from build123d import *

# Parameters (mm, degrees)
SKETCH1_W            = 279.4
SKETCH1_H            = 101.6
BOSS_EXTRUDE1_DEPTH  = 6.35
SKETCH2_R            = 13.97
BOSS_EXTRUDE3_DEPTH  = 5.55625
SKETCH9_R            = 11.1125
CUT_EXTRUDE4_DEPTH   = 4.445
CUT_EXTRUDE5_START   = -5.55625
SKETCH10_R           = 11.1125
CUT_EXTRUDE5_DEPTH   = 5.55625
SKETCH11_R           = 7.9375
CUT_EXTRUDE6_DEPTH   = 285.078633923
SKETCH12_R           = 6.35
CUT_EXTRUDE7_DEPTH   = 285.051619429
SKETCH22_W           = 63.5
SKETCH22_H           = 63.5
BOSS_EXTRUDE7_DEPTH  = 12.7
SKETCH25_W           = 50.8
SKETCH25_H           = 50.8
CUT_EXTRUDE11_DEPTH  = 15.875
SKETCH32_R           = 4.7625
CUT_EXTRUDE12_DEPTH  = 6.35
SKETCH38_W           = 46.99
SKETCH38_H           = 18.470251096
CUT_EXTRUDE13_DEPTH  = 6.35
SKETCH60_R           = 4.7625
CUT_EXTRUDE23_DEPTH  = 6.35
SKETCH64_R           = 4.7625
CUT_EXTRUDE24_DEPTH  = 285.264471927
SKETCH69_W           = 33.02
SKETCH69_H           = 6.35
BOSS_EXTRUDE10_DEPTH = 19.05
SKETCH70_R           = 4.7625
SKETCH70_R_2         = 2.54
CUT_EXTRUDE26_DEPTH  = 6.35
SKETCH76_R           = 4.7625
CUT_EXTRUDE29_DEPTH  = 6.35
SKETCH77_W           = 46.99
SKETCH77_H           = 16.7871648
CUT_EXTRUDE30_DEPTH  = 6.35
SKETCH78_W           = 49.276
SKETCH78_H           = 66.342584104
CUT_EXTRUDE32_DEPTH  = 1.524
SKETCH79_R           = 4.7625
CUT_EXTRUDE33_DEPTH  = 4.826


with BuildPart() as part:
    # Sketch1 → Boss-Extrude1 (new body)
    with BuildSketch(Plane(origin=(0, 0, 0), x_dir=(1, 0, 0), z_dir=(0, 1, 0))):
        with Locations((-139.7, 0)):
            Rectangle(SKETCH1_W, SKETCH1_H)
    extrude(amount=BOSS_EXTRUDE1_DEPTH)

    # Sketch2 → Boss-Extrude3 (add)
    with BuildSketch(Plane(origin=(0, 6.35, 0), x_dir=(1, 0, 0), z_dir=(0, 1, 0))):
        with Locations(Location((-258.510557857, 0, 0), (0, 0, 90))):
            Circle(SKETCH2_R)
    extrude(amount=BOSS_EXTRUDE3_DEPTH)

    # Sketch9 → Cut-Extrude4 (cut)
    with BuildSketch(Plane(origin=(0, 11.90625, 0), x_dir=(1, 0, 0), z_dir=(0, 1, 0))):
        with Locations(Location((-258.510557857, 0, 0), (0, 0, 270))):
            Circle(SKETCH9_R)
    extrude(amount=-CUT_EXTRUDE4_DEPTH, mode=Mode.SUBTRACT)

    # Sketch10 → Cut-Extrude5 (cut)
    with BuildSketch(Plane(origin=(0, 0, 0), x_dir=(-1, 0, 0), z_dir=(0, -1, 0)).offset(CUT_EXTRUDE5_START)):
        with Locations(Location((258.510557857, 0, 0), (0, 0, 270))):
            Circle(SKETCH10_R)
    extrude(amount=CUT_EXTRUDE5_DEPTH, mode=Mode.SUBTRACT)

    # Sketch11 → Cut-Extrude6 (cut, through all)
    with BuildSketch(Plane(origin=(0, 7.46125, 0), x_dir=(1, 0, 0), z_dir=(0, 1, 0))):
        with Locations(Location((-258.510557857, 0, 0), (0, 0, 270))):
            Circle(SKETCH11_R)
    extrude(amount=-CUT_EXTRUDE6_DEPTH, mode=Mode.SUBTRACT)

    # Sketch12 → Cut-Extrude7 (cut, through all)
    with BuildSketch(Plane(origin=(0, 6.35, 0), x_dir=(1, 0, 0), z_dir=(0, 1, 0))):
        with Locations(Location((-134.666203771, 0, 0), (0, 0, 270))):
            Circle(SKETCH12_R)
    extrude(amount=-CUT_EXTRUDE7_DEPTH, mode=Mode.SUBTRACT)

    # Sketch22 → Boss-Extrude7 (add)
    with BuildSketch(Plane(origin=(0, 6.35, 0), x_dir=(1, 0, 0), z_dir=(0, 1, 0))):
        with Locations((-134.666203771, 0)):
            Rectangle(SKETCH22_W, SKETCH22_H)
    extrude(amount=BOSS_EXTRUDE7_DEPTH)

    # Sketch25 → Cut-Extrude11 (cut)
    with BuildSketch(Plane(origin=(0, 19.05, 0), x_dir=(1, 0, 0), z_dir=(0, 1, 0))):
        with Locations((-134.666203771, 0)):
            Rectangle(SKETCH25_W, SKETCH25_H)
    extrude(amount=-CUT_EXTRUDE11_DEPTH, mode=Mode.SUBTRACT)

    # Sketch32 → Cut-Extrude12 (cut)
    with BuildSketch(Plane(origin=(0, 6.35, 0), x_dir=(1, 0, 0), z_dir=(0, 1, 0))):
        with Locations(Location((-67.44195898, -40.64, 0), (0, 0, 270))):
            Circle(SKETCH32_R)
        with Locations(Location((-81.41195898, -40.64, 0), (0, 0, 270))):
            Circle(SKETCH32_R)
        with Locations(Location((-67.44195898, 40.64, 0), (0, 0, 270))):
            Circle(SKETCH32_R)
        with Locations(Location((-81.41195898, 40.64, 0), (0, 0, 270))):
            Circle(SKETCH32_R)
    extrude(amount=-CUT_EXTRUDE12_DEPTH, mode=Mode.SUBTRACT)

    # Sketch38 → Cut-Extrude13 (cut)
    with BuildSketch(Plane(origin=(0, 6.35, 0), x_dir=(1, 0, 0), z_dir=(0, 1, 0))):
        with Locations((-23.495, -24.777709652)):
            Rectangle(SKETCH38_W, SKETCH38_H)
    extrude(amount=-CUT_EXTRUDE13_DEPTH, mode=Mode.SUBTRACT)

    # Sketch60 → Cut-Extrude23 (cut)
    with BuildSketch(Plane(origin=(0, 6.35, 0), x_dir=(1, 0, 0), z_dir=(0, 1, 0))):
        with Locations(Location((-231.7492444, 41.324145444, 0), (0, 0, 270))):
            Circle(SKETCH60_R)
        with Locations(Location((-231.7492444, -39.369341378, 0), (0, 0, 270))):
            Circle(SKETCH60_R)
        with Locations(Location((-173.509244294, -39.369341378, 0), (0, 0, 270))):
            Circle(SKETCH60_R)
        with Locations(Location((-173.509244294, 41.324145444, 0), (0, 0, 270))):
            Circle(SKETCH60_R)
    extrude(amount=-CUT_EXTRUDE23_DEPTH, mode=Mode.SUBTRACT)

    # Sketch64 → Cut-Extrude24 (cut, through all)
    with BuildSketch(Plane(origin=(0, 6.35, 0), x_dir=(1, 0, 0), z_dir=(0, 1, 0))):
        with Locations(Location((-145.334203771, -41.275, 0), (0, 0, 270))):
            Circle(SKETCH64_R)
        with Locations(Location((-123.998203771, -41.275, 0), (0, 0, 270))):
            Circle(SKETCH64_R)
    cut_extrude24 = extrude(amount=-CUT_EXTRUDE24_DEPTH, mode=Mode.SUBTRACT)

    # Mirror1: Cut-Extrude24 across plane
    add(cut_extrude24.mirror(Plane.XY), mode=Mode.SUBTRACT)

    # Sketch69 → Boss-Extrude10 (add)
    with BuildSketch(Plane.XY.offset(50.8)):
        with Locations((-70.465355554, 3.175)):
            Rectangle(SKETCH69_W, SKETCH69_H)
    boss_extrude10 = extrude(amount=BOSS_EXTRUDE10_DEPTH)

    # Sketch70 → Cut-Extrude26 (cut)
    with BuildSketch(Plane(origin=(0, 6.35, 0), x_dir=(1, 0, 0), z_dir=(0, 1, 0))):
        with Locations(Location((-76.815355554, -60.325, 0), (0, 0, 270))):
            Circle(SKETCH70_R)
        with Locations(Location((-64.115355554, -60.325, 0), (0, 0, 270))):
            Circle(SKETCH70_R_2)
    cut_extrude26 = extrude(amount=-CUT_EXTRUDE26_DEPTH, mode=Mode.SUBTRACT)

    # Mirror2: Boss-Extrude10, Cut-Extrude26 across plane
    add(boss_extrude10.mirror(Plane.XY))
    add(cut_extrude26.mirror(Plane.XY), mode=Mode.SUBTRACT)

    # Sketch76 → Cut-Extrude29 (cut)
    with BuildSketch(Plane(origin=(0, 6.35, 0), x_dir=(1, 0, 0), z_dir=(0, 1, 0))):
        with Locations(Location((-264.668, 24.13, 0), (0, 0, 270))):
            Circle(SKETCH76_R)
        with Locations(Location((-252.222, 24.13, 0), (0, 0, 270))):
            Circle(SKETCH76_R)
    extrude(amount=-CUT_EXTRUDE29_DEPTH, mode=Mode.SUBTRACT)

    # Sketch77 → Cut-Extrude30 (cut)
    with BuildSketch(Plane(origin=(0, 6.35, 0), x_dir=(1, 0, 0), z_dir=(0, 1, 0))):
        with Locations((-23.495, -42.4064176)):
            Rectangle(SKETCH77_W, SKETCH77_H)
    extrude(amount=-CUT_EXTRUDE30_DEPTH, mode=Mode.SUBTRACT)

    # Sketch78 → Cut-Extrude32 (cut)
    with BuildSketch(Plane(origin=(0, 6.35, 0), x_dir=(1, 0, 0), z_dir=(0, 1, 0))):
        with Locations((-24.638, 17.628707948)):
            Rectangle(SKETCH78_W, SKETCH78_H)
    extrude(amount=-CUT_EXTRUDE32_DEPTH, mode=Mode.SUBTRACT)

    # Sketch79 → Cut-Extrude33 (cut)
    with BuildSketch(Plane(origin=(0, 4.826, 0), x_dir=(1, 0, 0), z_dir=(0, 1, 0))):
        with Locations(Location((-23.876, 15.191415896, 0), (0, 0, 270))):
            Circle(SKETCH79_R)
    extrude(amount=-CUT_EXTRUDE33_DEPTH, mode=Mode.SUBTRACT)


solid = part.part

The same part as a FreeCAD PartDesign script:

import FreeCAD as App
import Part
import Sketcher

V = App.Vector
Q = App.Units.Quantity

doc = App.newDocument("Part")
body = doc.addObject("PartDesign::Body", "Body")

# Sketch on XZ plane
sketch1 = body.newObject("Sketcher::SketchObject", "Sketch")
sketch1.AttachmentSupport = (doc.getObject("XZ_Plane"), [""])
sketch1.MapMode = "FlatFace"
sketch1.addGeometry([
    Part.LineSegment(V(-279.4, -50.8, 0), V(-279.4, 50.8, 0)),
    Part.LineSegment(V(-279.4, 50.8, 0), V(0, 50.8, 0)),
    Part.LineSegment(V(0, 50.8, 0), V(0, -50.8, 0)),
    Part.LineSegment(V(0, -50.8, 0), V(-279.4, -50.8, 0)),
], False)
sketch1.addConstraint([
    Sketcher.Constraint("Coincident", 0, 2, 1, 1),
    Sketcher.Constraint("Coincident", 1, 2, 2, 1),
    Sketcher.Constraint("Coincident", 2, 2, 3, 1),
    Sketcher.Constraint("Coincident", 3, 2, 0, 1),
    Sketcher.Constraint("Vertical", 0),
    Sketcher.Constraint("Horizontal", 1),
    Sketcher.Constraint("Vertical", 2),
    Sketcher.Constraint("Horizontal", 3),
    Sketcher.Constraint("Symmetric", 1, 2, 2, 2, -1, 1),
    Sketcher.Constraint("DistanceX", 1, 1, 1, 2, Q("11 in")),
    Sketcher.Constraint("DistanceY", 0, 1, 0, 2, Q("4 in")),
])
pad1 = body.newObject("PartDesign::Pad", "Pad")
pad1.Profile = sketch1
pad1.Length = Q("0.25 in")
pad1.Reversed = True

# Sketch on XZ plane
sketch2 = body.newObject("Sketcher::SketchObject", "Sketch001")
sketch2.AttachmentSupport = (doc.getObject("XZ_Plane"), [""])
sketch2.MapMode = "FlatFace"
sketch2.AttachmentOffset = App.Placement(V(0, 0, -0.25 * 25.4), App.Rotation())
sketch2.addGeometry(Part.Circle(V(-258.510558, 0, 0), V(0, 0, 1), 13.97), False)
sketch2.addConstraint([
    Sketcher.Constraint("PointOnObject", 0, 3, -1),
    Sketcher.Constraint("Diameter", 0, Q("1.1 in")),
    Sketcher.Constraint("DistanceX", 0, 3, -1, 1, Q("258.510558 mm")),
])
pad2 = body.newObject("PartDesign::Pad", "Pad001")
pad2.Profile = sketch2
pad2.Length = Q("0.21875 in")
pad2.Reversed = True

# Sketch on XZ plane
sketch3 = body.newObject("Sketcher::SketchObject", "Sketch002")
sketch3.AttachmentSupport = (doc.getObject("XZ_Plane"), [""])
sketch3.MapMode = "FlatFace"
sketch3.AttachmentOffset = App.Placement(V(0, 0, -0.46875 * 25.4), App.Rotation())
sketch3.addGeometry(Part.Circle(V(-258.510558, 0, 0), V(0, 0, 1), 11.1125), False)
sketch3.addConstraint([
    Sketcher.Constraint("PointOnObject", 0, 3, -1),
    Sketcher.Constraint("Diameter", 0, Q("0.875 in")),
    Sketcher.Constraint("DistanceX", 0, 3, -1, 1, Q("258.510558 mm")),
])
pocket1 = body.newObject("PartDesign::Pocket", "Pocket")
pocket1.Profile = sketch3
pocket1.Length = Q("0.175 in")
pocket1.Reversed = True

# Sketch on XZ plane
sketch4 = body.newObject("Sketcher::SketchObject", "Sketch003")
sketch4.AttachmentSupport = (doc.getObject("XZ_Plane"), [""])
sketch4.MapMode = "FlatFace"
sketch4.AttachmentOffset = App.Placement(V(0, 0, -0.21875 * 25.4), App.Rotation())
sketch4.addGeometry(Part.Circle(V(-258.510558, 0, 0), V(0, 0, 1), 11.1125), False)
sketch4.addConstraint([
    Sketcher.Constraint("PointOnObject", 0, 3, -1),
    Sketcher.Constraint("Diameter", 0, Q("0.875 in")),
    Sketcher.Constraint("DistanceX", 0, 3, -1, 1, Q("258.510558 mm")),
])
pocket2 = body.newObject("PartDesign::Pocket", "Pocket001")
pocket2.Profile = sketch4
pocket2.Length = Q("0.21875 in")
pocket2.Reversed = True

# Sketch on XZ plane
sketch5 = body.newObject("Sketcher::SketchObject", "Sketch004")
sketch5.AttachmentSupport = (doc.getObject("XZ_Plane"), [""])
sketch5.MapMode = "FlatFace"
sketch5.AttachmentOffset = App.Placement(V(0, 0, -7.46125), App.Rotation())
sketch5.addGeometry(Part.Circle(V(-258.510558, 0, 0), V(0, 0, 1), 7.9375), False)
sketch5.addConstraint([
    Sketcher.Constraint("PointOnObject", 0, 3, -1),
    Sketcher.Constraint("Diameter", 0, Q("0.625 in")),
    Sketcher.Constraint("DistanceX", 0, 3, -1, 1, Q("258.510558 mm")),
])
pocket3 = body.newObject("PartDesign::Pocket", "Pocket002")
pocket3.Profile = sketch5
pocket3.Type = "ThroughAll"
pocket3.Reversed = True

# Sketch on XZ plane
sketch6 = body.newObject("Sketcher::SketchObject", "Sketch005")
sketch6.AttachmentSupport = (doc.getObject("XZ_Plane"), [""])
sketch6.MapMode = "FlatFace"
sketch6.AttachmentOffset = App.Placement(V(0, 0, -0.25 * 25.4), App.Rotation())
sketch6.addGeometry(Part.Circle(V(-134.666204, 0, 0), V(0, 0, 1), 6.35), False)
sketch6.addConstraint([
    Sketcher.Constraint("PointOnObject", 0, 3, -1),
    Sketcher.Constraint("Diameter", 0, Q("0.5 in")),
    Sketcher.Constraint("DistanceX", 0, 3, -1, 1, Q("134.666204 mm")),
])
pocket4 = body.newObject("PartDesign::Pocket", "Pocket003")
pocket4.Profile = sketch6
pocket4.Type = "ThroughAll"
pocket4.Reversed = True

# Sketch on XZ plane
sketch7 = body.newObject("Sketcher::SketchObject", "Sketch006")
sketch7.AttachmentSupport = (doc.getObject("XZ_Plane"), [""])
sketch7.MapMode = "FlatFace"
sketch7.AttachmentOffset = App.Placement(V(0, 0, -0.25 * 25.4), App.Rotation())
sketch7.addGeometry([
    Part.LineSegment(V(-166.416204, -31.75, 0), V(-166.416204, 31.75, 0)),
    Part.LineSegment(V(-166.416204, 31.75, 0), V(-102.916204, 31.75, 0)),
    Part.LineSegment(V(-102.916204, 31.75, 0), V(-102.916204, -31.75, 0)),
    Part.LineSegment(V(-102.916204, -31.75, 0), V(-166.416204, -31.75, 0)),
], False)
sketch7.addConstraint([
    Sketcher.Constraint("Coincident", 0, 2, 1, 1),
    Sketcher.Constraint("Coincident", 1, 2, 2, 1),
    Sketcher.Constraint("Coincident", 2, 2, 3, 1),
    Sketcher.Constraint("Coincident", 3, 2, 0, 1),
    Sketcher.Constraint("Vertical", 0),
    Sketcher.Constraint("Horizontal", 1),
    Sketcher.Constraint("Vertical", 2),
    Sketcher.Constraint("Horizontal", 3),
    Sketcher.Constraint("Equal", 3, 0),
    Sketcher.Constraint("DistanceX", 1, 1, 1, 2, Q("2.5 in")),
    Sketcher.Constraint("DistanceY", -1, 1, 0, 2, Q("1.25 in")),
    Sketcher.Constraint("DistanceX", 0, 2, -1, 1, Q("166.416204 mm")),
])
pad3 = body.newObject("PartDesign::Pad", "Pad002")
pad3.Profile = sketch7
pad3.Length = Q("0.5 in")
pad3.Reversed = True

# Sketch on XZ plane
sketch8 = body.newObject("Sketcher::SketchObject", "Sketch007")
sketch8.AttachmentSupport = (doc.getObject("XZ_Plane"), [""])
sketch8.MapMode = "FlatFace"
sketch8.AttachmentOffset = App.Placement(V(0, 0, -0.75 * 25.4), App.Rotation())
sketch8.addGeometry([
    Part.LineSegment(V(-160.066204, -25.4, 0), V(-160.066204, 25.4, 0)),
    Part.LineSegment(V(-160.066204, 25.4, 0), V(-109.266204, 25.4, 0)),
    Part.LineSegment(V(-109.266204, 25.4, 0), V(-109.266204, -25.4, 0)),
    Part.LineSegment(V(-109.266204, -25.4, 0), V(-160.066204, -25.4, 0)),
], False)
sketch8.addConstraint([
    Sketcher.Constraint("Coincident", 0, 2, 1, 1),
    Sketcher.Constraint("Coincident", 1, 2, 2, 1),
    Sketcher.Constraint("Coincident", 2, 2, 3, 1),
    Sketcher.Constraint("Coincident", 3, 2, 0, 1),
    Sketcher.Constraint("Vertical", 0),
    Sketcher.Constraint("Horizontal", 1),
    Sketcher.Constraint("Vertical", 2),
    Sketcher.Constraint("Horizontal", 3),
    Sketcher.Constraint("Equal", 3, 0),
    Sketcher.Constraint("DistanceX", 1, 1, 1, 2, Q("2 in")),
    Sketcher.Constraint("DistanceY", -1, 1, 0, 2, Q("1 in")),
    Sketcher.Constraint("DistanceX", 0, 2, -1, 1, Q("160.066204 mm")),
])
pocket5 = body.newObject("PartDesign::Pocket", "Pocket004")
pocket5.Profile = sketch8
pocket5.Length = Q("0.625 in")
pocket5.Reversed = True

# Sketch on XZ plane
sketch9 = body.newObject("Sketcher::SketchObject", "Sketch008")
sketch9.AttachmentSupport = (doc.getObject("XZ_Plane"), [""])
sketch9.MapMode = "FlatFace"
sketch9.AttachmentOffset = App.Placement(V(0, 0, -0.25 * 25.4), App.Rotation())
sketch9.addGeometry([
    Part.Circle(V(-67.441959, 40.64, 0), V(0, 0, 1), 4.7625),
    Part.Circle(V(-81.411959, 40.64, 0), V(0, 0, 1), 4.7625),
    Part.Circle(V(-67.441959, -40.64, 0), V(0, 0, 1), 4.7625),
    Part.Circle(V(-81.411959, -40.64, 0), V(0, 0, 1), 4.7625),
], False)
sketch9.addConstraint([
    Sketcher.Constraint("Equal", 0, 1),
    Sketcher.Constraint("Equal", 1, 2),
    Sketcher.Constraint("Equal", 2, 3),
    Sketcher.Constraint("Symmetric", 0, 3, 2, 3, -1),
    Sketcher.Constraint("Symmetric", 1, 3, 3, 3, -1),
    Sketcher.Constraint("Horizontal", 0, 3, 1, 3),
    Sketcher.Constraint("Diameter", 0, Q("0.375 in")),
    Sketcher.Constraint("DistanceY", -1, 1, 0, 3, Q("1.6 in")),
    Sketcher.Constraint("DistanceX", 1, 3, 0, 3, Q("0.55 in")),
    Sketcher.Constraint("DistanceX", 0, 3, -1, 1, Q("67.441959 mm")),
])
pocket6 = body.newObject("PartDesign::Pocket", "Pocket005")
pocket6.Profile = sketch9
pocket6.Length = Q("0.25 in")
pocket6.Reversed = True

# Sketch on XZ plane
sketch10 = body.newObject("Sketcher::SketchObject", "Sketch009")
sketch10.AttachmentSupport = (doc.getObject("XZ_Plane"), [""])
sketch10.MapMode = "FlatFace"
sketch10.AttachmentOffset = App.Placement(V(0, 0, -0.25 * 25.4), App.Rotation())
sketch10.addGeometry([
    Part.LineSegment(V(-46.99, 15.542584, 0), V(-46.99, 34.012835, 0)),
    Part.LineSegment(V(-46.99, 34.012835, 0), V(0, 34.012835, 0)),
    Part.LineSegment(V(0, 34.012835, 0), V(0, 15.542584, 0)),
    Part.LineSegment(V(0, 15.542584, 0), V(-46.99, 15.542584, 0)),
], False)
sketch10.addConstraint([
    Sketcher.Constraint("Coincident", 0, 2, 1, 1),
    Sketcher.Constraint("Coincident", 1, 2, 2, 1),
    Sketcher.Constraint("Coincident", 2, 2, 3, 1),
    Sketcher.Constraint("Coincident", 3, 2, 0, 1),
    Sketcher.Constraint("Vertical", 0),
    Sketcher.Constraint("Horizontal", 1),
    Sketcher.Constraint("Vertical", 2),
    Sketcher.Constraint("Horizontal", 3),
    Sketcher.Constraint("PointOnObject", 1, 2, -2),
    Sketcher.Constraint("DistanceX", 1, 1, 1, 2, Q("1.85 in")),
    Sketcher.Constraint("DistanceY", 0, 1, 0, 2, Q("18.470251 mm")),
    Sketcher.Constraint("DistanceY", -1, 1, 0, 2, Q("34.012835 mm")),
])
pocket7 = body.newObject("PartDesign::Pocket", "Pocket006")
pocket7.Profile = sketch10
pocket7.Length = Q("0.25 in")
pocket7.Reversed = True

# Sketch on XZ plane
sketch11 = body.newObject("Sketcher::SketchObject", "Sketch010")
sketch11.AttachmentSupport = (doc.getObject("XZ_Plane"), [""])
sketch11.MapMode = "FlatFace"
sketch11.AttachmentOffset = App.Placement(V(0, 0, -0.25 * 25.4), App.Rotation())
sketch11.addGeometry([
    Part.Circle(V(-231.749244, -41.324145, 0), V(0, 0, 1), 4.7625),
    Part.Circle(V(-231.749244, 39.369341, 0), V(0, 0, 1), 4.7625),
    Part.Circle(V(-173.509244, 39.369341, 0), V(0, 0, 1), 4.7625),
    Part.Circle(V(-173.509244, -41.324145, 0), V(0, 0, 1), 4.7625),
], False)
sketch11.addConstraint([
    Sketcher.Constraint("Equal", 0, 1),
    Sketcher.Constraint("Equal", 1, 2),
    Sketcher.Constraint("Equal", 2, 3),
    Sketcher.Constraint("Horizontal", 1, 3, 2, 3),
    Sketcher.Constraint("Horizontal", 0, 3, 3, 3),
    Sketcher.Constraint("Vertical", 0, 3, 1, 3),
    Sketcher.Constraint("Vertical", 2, 3, 3, 3),
    Sketcher.Constraint("Diameter", 0, Q("0.375 in")),
    Sketcher.Constraint("DistanceX", 1, 3, 2, 3, Q("58.24 mm")),
    Sketcher.Constraint("DistanceY", -1, 1, 1, 3, Q("39.369341 mm")),
    Sketcher.Constraint("DistanceX", 0, 3, -1, 1, Q("231.749244 mm")),
    Sketcher.Constraint("DistanceY", 0, 3, -1, 1, Q("41.324145 mm")),
])
pocket8 = body.newObject("PartDesign::Pocket", "Pocket007")
pocket8.Profile = sketch11
pocket8.Length = Q("0.25 in")
pocket8.Reversed = True

# Sketch on XZ plane
sketch12 = body.newObject("Sketcher::SketchObject", "Sketch011")
sketch12.AttachmentSupport = (doc.getObject("XZ_Plane"), [""])
sketch12.MapMode = "FlatFace"
sketch12.AttachmentOffset = App.Placement(V(0, 0, -0.25 * 25.4), App.Rotation())
sketch12.addGeometry([
    Part.Circle(V(-145.334204, 41.275, 0), V(0, 0, 1), 4.7625),
    Part.Circle(V(-123.998204, 41.275, 0), V(0, 0, 1), 4.7625),
], False)
sketch12.addConstraint([
    Sketcher.Constraint("Equal", 0, 1),
    Sketcher.Constraint("Horizontal", 0, 3, 1, 3),
    Sketcher.Constraint("Diameter", 0, Q("0.375 in")),
    Sketcher.Constraint("DistanceX", 0, 3, 1, 3, Q("0.84 in")),
    Sketcher.Constraint("DistanceY", -1, 1, 0, 3, Q("1.625 in")),
    Sketcher.Constraint("DistanceX", 0, 3, -1, 1, Q("145.334204 mm")),
])
pocket9 = body.newObject("PartDesign::Pocket", "Pocket008")
pocket9.Profile = sketch12
pocket9.Type = "ThroughAll"
pocket9.Reversed = True
doc.recompute()

mirrored = body.newObject("PartDesign::Mirrored", "Mirrored")
mirrored.Originals = [pocket9]
mirrored.MirrorPlane = (doc.getObject("XY_Plane"), [""])
body.Tip = mirrored

# Sketch on XY plane
sketch13 = body.newObject("Sketcher::SketchObject", "Sketch012")
sketch13.AttachmentSupport = (doc.getObject("XY_Plane"), [""])
sketch13.MapMode = "FlatFace"
sketch13.AttachmentOffset = App.Placement(V(0, 0, 2 * 25.4), App.Rotation())
sketch13.addGeometry([
    Part.LineSegment(V(-86.975356, 6.35, 0), V(-86.975356, 0, 0)),
    Part.LineSegment(V(-86.975356, 0, 0), V(-53.955356, 0, 0)),
    Part.LineSegment(V(-53.955356, 0, 0), V(-53.955356, 6.35, 0)),
    Part.LineSegment(V(-53.955356, 6.35, 0), V(-86.975356, 6.35, 0)),
], False)
sketch13.addConstraint([
    Sketcher.Constraint("Coincident", 0, 2, 1, 1),
    Sketcher.Constraint("Coincident", 1, 2, 2, 1),
    Sketcher.Constraint("Coincident", 2, 2, 3, 1),
    Sketcher.Constraint("Coincident", 3, 2, 0, 1),
    Sketcher.Constraint("Vertical", 0),
    Sketcher.Constraint("Horizontal", 1),
    Sketcher.Constraint("Vertical", 2),
    Sketcher.Constraint("Horizontal", 3),
    Sketcher.Constraint("PointOnObject", 0, 2, -1),
    Sketcher.Constraint("DistanceX", 1, 1, 1, 2, Q("1.3 in")),
    Sketcher.Constraint("DistanceY", 0, 2, 0, 1, Q("0.25 in")),
    Sketcher.Constraint("DistanceX", 0, 2, -1, 1, Q("86.975356 mm")),
])
pad4 = body.newObject("PartDesign::Pad", "Pad003")
pad4.Profile = sketch13
pad4.Length = Q("0.75 in")

# Sketch on XZ plane
sketch14 = body.newObject("Sketcher::SketchObject", "Sketch013")
sketch14.AttachmentSupport = (doc.getObject("XZ_Plane"), [""])
sketch14.MapMode = "FlatFace"
sketch14.AttachmentOffset = App.Placement(V(0, 0, -0.25 * 25.4), App.Rotation())
sketch14.addGeometry([
    Part.Circle(V(-76.815356, 60.325, 0), V(0, 0, 1), 4.7625),
    Part.Circle(V(-64.115356, 60.325, 0), V(0, 0, 1), 2.54),
], False)
sketch14.addConstraint([
    Sketcher.Constraint("Horizontal", 0, 3, 1, 3),
    Sketcher.Constraint("Diameter", 1, Q("0.2 in")),
    Sketcher.Constraint("Diameter", 0, Q("0.375 in")),
    Sketcher.Constraint("DistanceX", 0, 3, 1, 3, Q("0.5 in")),
    Sketcher.Constraint("DistanceY", -1, 1, 0, 3, Q("2.375 in")),
    Sketcher.Constraint("DistanceX", 0, 3, -1, 1, Q("76.815356 mm")),
])
pocket10 = body.newObject("PartDesign::Pocket", "Pocket009")
pocket10.Profile = sketch14
pocket10.Length = Q("0.25 in")
pocket10.Reversed = True
doc.recompute()

mirrored2 = body.newObject("PartDesign::Mirrored", "Mirrored001")
mirrored2.Originals = [pad4, pocket10]
mirrored2.MirrorPlane = (doc.getObject("XY_Plane"), [""])
body.Tip = mirrored2

# Sketch on XZ plane
sketch15 = body.newObject("Sketcher::SketchObject", "Sketch014")
sketch15.AttachmentSupport = (doc.getObject("XZ_Plane"), [""])
sketch15.MapMode = "FlatFace"
sketch15.AttachmentOffset = App.Placement(V(0, 0, -0.25 * 25.4), App.Rotation())
sketch15.addGeometry([
    Part.Circle(V(-264.668, -24.13, 0), V(0, 0, 1), 4.7625),
    Part.Circle(V(-252.222, -24.13, 0), V(0, 0, 1), 4.7625),
], False)
sketch15.addConstraint([
    Sketcher.Constraint("Equal", 0, 1),
    Sketcher.Constraint("Horizontal", 0, 3, 1, 3),
    Sketcher.Constraint("Diameter", 0, Q("0.375 in")),
    Sketcher.Constraint("DistanceX", 0, 3, -1, 1, Q("10.42 in")),
    Sketcher.Constraint("DistanceY", 0, 3, -1, 1, Q("0.95 in")),
    Sketcher.Constraint("DistanceX", 1, 3, -1, 1, Q("9.93 in")),
])
pocket11 = body.newObject("PartDesign::Pocket", "Pocket010")
pocket11.Profile = sketch15
pocket11.Length = Q("0.25 in")
pocket11.Reversed = True

# Sketch on XZ plane
sketch16 = body.newObject("Sketcher::SketchObject", "Sketch015")
sketch16.AttachmentSupport = (doc.getObject("XZ_Plane"), [""])
sketch16.MapMode = "FlatFace"
sketch16.AttachmentOffset = App.Placement(V(0, 0, -0.25 * 25.4), App.Rotation())
sketch16.addGeometry([
    Part.LineSegment(V(-46.99, 34.012835, 0), V(-46.99, 50.8, 0)),
    Part.LineSegment(V(-46.99, 50.8, 0), V(0, 50.8, 0)),
    Part.LineSegment(V(0, 50.8, 0), V(0, 34.012835, 0)),
    Part.LineSegment(V(0, 34.012835, 0), V(-46.99, 34.012835, 0)),
], False)
sketch16.addConstraint([
    Sketcher.Constraint("Coincident", 0, 2, 1, 1),
    Sketcher.Constraint("Coincident", 1, 2, 2, 1),
    Sketcher.Constraint("Coincident", 2, 2, 3, 1),
    Sketcher.Constraint("Coincident", 3, 2, 0, 1),
    Sketcher.Constraint("Vertical", 0),
    Sketcher.Constraint("Horizontal", 1),
    Sketcher.Constraint("Vertical", 2),
    Sketcher.Constraint("Horizontal", 3),
    Sketcher.Constraint("PointOnObject", 1, 2, -2),
    Sketcher.Constraint("DistanceY", -1, 1, 0, 2, Q("2 in")),
    Sketcher.Constraint("DistanceX", 1, 1, 1, 2, Q("1.85 in")),
    Sketcher.Constraint("DistanceY", 0, 1, 0, 2, Q("16.787165 mm")),
])
pocket12 = body.newObject("PartDesign::Pocket", "Pocket011")
pocket12.Profile = sketch16
pocket12.Length = Q("0.25 in")
pocket12.Reversed = True

# Sketch on XZ plane
sketch17 = body.newObject("Sketcher::SketchObject", "Sketch016")
sketch17.AttachmentSupport = (doc.getObject("XZ_Plane"), [""])
sketch17.MapMode = "FlatFace"
sketch17.AttachmentOffset = App.Placement(V(0, 0, -0.25 * 25.4), App.Rotation())
sketch17.addGeometry([
    Part.LineSegment(V(-49.276, -50.8, 0), V(-49.276, 15.542584, 0)),
    Part.LineSegment(V(-49.276, 15.542584, 0), V(0, 15.542584, 0)),
    Part.LineSegment(V(0, 15.542584, 0), V(0, -50.8, 0)),
    Part.LineSegment(V(0, -50.8, 0), V(-49.276, -50.8, 0)),
], False)
sketch17.addConstraint([
    Sketcher.Constraint("Coincident", 0, 2, 1, 1),
    Sketcher.Constraint("Coincident", 1, 2, 2, 1),
    Sketcher.Constraint("Coincident", 2, 2, 3, 1),
    Sketcher.Constraint("Coincident", 3, 2, 0, 1),
    Sketcher.Constraint("Vertical", 0),
    Sketcher.Constraint("Horizontal", 1),
    Sketcher.Constraint("Vertical", 2),
    Sketcher.Constraint("Horizontal", 3),
    Sketcher.Constraint("PointOnObject", 1, 2, -2),
    Sketcher.Constraint("DistanceY", 2, 2, -1, 1, Q("2 in")),
    Sketcher.Constraint("DistanceX", 1, 1, 1, 2, Q("1.94 in")),
    Sketcher.Constraint("DistanceY", 0, 1, 0, 2, Q("66.342584 mm")),
])
pocket13 = body.newObject("PartDesign::Pocket", "Pocket012")
pocket13.Profile = sketch17
pocket13.Length = Q("0.06 in")
pocket13.Reversed = True

# Sketch on XZ plane
sketch18 = body.newObject("Sketcher::SketchObject", "Sketch017")
sketch18.AttachmentSupport = (doc.getObject("XZ_Plane"), [""])
sketch18.MapMode = "FlatFace"
sketch18.AttachmentOffset = App.Placement(V(0, 0, -0.19 * 25.4), App.Rotation())
sketch18.addGeometry(Part.Circle(V(-23.876, -15.191416, 0), V(0, 0, 1), 4.7625), False)
sketch18.addConstraint([
    Sketcher.Constraint("Diameter", 0, Q("0.375 in")),
    Sketcher.Constraint("DistanceX", 0, 3, -1, 1, Q("0.94 in")),
    Sketcher.Constraint("DistanceY", 0, 3, -1, 1, Q("15.191416 mm")),
])
pocket14 = body.newObject("PartDesign::Pocket", "Pocket013")
pocket14.Profile = sketch18
pocket14.Length = Q("0.19 in")
pocket14.Reversed = True

doc.recompute()
